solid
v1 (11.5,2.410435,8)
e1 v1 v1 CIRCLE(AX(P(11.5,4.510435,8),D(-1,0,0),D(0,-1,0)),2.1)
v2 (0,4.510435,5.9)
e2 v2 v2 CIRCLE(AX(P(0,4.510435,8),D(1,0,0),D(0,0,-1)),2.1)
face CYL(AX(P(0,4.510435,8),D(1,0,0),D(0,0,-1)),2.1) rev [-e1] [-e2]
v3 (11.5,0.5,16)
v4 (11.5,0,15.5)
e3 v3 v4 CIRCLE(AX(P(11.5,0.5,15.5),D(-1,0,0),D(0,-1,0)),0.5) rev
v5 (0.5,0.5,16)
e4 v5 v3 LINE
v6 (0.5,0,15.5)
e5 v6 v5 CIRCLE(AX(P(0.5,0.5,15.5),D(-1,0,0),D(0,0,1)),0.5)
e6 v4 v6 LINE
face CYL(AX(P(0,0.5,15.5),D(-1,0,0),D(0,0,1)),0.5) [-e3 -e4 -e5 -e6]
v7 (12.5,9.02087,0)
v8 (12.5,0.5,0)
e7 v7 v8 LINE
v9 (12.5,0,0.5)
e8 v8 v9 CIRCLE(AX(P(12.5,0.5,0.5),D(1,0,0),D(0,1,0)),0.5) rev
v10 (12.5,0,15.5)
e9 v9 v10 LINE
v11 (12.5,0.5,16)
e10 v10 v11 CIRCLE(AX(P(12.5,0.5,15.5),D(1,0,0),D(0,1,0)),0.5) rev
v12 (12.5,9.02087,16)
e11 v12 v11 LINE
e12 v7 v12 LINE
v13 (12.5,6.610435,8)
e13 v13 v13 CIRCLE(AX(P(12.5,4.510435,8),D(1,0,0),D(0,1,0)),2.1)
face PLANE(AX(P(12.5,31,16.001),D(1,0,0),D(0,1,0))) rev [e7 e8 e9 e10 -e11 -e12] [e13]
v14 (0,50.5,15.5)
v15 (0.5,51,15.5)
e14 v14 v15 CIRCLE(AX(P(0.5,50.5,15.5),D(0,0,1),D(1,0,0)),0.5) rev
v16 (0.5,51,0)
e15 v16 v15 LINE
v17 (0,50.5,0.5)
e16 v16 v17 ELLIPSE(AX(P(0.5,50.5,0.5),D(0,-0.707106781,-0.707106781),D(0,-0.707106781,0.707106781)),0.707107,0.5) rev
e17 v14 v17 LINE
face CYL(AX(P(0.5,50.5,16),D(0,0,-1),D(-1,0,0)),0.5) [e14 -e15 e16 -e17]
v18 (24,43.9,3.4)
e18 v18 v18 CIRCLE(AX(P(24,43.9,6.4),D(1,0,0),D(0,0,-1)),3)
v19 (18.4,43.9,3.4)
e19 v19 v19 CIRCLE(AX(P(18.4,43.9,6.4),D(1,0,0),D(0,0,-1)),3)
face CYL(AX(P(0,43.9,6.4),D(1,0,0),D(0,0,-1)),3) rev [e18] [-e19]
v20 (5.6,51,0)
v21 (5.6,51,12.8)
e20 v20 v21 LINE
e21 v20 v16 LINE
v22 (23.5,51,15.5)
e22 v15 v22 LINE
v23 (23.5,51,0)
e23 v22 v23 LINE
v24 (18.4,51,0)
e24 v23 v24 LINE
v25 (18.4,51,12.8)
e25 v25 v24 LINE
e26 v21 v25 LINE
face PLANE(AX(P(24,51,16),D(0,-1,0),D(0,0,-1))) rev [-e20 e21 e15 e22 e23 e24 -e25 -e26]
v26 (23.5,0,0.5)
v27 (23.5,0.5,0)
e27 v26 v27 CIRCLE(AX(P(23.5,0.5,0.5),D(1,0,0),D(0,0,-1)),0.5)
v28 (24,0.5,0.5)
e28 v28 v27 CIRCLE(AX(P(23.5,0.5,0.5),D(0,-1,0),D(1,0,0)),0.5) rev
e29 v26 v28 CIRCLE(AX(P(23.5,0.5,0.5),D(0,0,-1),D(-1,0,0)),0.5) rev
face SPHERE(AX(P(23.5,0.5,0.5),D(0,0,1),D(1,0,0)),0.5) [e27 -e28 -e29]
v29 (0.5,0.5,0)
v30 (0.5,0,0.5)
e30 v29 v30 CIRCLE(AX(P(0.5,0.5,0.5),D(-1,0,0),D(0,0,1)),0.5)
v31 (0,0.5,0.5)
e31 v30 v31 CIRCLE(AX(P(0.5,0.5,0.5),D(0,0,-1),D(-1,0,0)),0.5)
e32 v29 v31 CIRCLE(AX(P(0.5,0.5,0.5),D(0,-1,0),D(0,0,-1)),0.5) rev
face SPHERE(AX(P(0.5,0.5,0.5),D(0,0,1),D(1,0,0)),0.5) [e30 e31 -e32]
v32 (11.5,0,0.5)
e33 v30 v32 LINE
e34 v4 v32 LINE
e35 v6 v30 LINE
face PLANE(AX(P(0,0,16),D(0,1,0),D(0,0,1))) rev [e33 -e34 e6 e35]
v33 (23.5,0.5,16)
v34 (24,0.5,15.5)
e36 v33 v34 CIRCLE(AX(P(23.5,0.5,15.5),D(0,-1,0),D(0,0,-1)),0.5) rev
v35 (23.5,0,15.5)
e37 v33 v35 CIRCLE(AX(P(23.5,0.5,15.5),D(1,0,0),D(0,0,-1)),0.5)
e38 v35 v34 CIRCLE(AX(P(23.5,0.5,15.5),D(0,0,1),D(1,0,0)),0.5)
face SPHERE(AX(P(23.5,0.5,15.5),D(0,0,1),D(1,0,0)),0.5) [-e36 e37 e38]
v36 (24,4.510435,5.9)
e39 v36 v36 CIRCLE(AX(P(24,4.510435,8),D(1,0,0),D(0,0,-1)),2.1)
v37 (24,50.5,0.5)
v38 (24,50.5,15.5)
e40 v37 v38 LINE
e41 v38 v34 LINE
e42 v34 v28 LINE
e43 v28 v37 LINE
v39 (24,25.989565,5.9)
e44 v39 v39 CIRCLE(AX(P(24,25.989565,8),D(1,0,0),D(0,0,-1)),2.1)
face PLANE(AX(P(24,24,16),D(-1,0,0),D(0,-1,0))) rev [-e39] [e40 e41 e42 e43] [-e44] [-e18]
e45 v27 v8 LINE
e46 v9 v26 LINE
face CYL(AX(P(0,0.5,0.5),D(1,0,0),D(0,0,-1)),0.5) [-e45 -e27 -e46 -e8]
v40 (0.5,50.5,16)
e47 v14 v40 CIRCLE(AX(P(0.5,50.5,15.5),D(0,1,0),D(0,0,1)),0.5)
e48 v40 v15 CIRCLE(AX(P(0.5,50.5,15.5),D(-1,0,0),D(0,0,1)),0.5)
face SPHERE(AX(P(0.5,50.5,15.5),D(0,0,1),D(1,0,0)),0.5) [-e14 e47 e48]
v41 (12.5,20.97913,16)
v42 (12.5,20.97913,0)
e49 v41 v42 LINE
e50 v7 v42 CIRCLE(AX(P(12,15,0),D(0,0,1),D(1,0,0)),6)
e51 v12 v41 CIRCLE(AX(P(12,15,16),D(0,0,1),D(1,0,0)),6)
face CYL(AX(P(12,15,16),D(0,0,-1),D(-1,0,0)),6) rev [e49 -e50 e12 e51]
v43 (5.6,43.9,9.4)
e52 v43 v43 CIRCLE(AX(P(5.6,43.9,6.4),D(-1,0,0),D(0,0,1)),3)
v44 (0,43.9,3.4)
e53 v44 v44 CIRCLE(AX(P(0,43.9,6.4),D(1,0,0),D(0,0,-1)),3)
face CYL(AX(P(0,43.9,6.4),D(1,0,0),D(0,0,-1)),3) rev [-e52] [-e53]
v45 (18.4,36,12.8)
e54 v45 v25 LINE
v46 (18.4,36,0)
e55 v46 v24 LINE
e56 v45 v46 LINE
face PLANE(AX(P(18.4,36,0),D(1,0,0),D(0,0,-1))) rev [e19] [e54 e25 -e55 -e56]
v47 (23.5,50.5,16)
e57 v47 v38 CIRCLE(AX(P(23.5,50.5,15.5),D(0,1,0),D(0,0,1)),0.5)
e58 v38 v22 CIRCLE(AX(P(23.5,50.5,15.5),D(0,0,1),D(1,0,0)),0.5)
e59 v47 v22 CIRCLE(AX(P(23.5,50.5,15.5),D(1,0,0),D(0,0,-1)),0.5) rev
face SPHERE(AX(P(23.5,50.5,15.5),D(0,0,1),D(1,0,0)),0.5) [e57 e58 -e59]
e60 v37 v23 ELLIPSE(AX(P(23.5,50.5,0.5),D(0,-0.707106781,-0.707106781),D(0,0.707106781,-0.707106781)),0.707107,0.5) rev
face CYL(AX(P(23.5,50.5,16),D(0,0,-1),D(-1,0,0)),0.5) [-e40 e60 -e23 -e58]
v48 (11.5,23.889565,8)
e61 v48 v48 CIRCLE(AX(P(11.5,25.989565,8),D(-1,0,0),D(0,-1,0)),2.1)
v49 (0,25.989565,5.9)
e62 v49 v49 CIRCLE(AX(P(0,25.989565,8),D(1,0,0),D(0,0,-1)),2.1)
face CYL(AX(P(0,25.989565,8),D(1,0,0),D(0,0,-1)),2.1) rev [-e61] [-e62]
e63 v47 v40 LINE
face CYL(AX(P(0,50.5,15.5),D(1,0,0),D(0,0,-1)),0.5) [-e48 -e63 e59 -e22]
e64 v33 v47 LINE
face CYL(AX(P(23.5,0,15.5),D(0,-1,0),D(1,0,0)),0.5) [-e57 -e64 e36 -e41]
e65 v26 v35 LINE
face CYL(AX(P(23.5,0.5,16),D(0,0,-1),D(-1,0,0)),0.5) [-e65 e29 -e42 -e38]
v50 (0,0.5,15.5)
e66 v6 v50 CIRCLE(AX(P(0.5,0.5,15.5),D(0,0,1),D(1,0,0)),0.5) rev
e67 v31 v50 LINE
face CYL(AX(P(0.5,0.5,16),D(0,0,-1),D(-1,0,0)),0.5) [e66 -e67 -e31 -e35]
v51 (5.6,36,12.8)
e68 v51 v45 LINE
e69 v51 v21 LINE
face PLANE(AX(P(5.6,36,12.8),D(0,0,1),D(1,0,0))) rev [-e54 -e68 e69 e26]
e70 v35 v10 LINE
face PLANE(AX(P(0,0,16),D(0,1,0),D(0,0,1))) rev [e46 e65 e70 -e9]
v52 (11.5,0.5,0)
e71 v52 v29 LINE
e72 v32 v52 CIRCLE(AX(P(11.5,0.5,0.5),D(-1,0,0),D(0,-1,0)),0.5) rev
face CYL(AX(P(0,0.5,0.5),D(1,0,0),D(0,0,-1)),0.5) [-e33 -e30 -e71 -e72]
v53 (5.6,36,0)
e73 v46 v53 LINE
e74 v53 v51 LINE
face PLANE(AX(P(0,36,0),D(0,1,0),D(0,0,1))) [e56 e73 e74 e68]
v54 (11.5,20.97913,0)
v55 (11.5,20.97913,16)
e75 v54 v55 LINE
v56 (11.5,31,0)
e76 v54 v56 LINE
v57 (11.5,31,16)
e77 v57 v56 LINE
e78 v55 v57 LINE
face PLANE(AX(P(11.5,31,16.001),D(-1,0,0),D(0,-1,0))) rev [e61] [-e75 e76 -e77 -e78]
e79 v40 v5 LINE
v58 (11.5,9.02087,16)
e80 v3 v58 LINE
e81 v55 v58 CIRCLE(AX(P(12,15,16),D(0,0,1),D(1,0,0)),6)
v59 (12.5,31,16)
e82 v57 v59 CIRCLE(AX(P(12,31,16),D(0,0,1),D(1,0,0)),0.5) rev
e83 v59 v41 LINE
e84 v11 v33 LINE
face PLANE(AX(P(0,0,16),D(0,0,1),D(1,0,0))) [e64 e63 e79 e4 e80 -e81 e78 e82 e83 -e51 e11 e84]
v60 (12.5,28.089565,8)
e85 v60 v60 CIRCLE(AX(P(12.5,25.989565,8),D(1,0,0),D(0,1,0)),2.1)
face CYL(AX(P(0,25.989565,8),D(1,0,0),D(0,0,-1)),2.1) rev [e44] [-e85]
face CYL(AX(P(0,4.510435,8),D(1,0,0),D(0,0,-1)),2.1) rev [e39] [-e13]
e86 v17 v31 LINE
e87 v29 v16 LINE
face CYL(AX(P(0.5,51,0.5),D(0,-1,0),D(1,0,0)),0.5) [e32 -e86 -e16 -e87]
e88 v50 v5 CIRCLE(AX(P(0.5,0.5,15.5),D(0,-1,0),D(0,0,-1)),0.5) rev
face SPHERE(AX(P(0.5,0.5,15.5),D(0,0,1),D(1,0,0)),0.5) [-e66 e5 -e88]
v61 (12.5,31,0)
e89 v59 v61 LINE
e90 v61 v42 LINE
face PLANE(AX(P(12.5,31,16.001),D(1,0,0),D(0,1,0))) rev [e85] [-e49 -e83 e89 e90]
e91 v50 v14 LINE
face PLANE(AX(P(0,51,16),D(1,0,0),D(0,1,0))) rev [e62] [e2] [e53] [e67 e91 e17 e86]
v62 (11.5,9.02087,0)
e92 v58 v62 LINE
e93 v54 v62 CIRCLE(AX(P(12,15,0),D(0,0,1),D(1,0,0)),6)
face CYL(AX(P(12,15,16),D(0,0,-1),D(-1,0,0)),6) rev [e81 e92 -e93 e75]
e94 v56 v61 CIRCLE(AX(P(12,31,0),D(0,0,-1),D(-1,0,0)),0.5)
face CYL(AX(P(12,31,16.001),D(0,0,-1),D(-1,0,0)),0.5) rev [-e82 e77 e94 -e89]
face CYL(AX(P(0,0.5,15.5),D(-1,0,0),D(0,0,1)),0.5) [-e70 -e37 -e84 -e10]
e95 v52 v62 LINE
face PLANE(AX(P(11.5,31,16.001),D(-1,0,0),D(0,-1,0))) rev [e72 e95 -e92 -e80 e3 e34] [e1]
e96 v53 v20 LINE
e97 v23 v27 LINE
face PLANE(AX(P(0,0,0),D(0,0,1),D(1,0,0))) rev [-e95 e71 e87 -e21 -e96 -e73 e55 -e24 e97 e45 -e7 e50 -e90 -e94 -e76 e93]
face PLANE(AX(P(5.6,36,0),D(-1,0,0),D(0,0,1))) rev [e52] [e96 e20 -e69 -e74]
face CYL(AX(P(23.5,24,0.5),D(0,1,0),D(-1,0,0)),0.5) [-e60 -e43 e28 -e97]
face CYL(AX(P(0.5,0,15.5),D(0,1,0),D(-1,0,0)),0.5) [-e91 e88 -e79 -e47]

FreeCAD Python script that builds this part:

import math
import FreeCAD as App
import Part
import Sketcher

V = App.Vector
Q = App.Units.Quantity


def edges_at(feature, points):
    """Names of the edges that pass closest to the given points."""
    edges = feature.Shape.Edges
    near = lambda p: min(range(len(edges)), key=lambda i: edges[i].distToShape(Part.Vertex(*p))[0])
    return sorted({f"Edge{near(p) + 1}" for p in points})

doc = App.newDocument("Part")
body = doc.addObject("PartDesign::Body", "Body")

sketch1 = body.newObject("Sketcher::SketchObject", "Sketch")
sketch1.AttachmentSupport = (doc.getObject("XY_Plane"), [""])
sketch1.MapMode = "FlatFace"
sketch1.addGeometry([
    Part.LineSegment(V(0, 0, 0), V(24, 0, 0)),
    Part.LineSegment(V(24, 0, 0), V(24, 51, 0)),
    Part.LineSegment(V(24, 51, 0), V(0, 51, 0)),
    Part.LineSegment(V(0, 51, 0), V(0, 0, 0)),
    Part.Circle(V(12, 15, 0), V(0, 0, 1), 6),
], False)
sketch1.addConstraint([
    Sketcher.Constraint("Coincident", 0, 2, 1, 1),
    Sketcher.Constraint("Coincident", 1, 2, 2, 1),
    Sketcher.Constraint("Coincident", 2, 2, 3, 1),
    Sketcher.Constraint("Coincident", 3, 2, 0, 1),
    Sketcher.Constraint("Horizontal", 0),
    Sketcher.Constraint("Vertical", 1),
    Sketcher.Constraint("Horizontal", 2),
    Sketcher.Constraint("Vertical", 3),
    Sketcher.Constraint("Coincident", 3, 2, -1, 1),
    Sketcher.Constraint("Diameter", 4, Q("12 mm")),
    Sketcher.Constraint("DistanceX", 0, 1, 0, 2, Q("24 mm")),
    Sketcher.Constraint("DistanceY", 1, 1, 1, 2, Q("51 mm")),
    Sketcher.Constraint("DistanceX", -1, 1, 4, 3, Q("12 mm")),
    Sketcher.Constraint("DistanceY", -1, 1, 4, 3, Q("15 mm")),
])
pad1 = body.newObject("PartDesign::Pad", "Pad")
pad1.Profile = sketch1
pad1.Length = 16

sketch2 = body.newObject("Sketcher::SketchObject", "Sketch001")
sketch2.AttachmentSupport = (doc.getObject("XY_Plane"), [""])
sketch2.MapMode = "FlatFace"
sketch2.AttachmentOffset = App.Placement(V(0, 0, 16), App.Rotation())
sketch2.addGeometry([
    Part.LineSegment(V(11.5, -14, 0), V(11.5, 31, 0)),
    Part.ArcOfCircle(Part.Circle(V(12, 31, 0), V(0, 0, 1), 0.5), math.radians(0), math.radians(180)),
    Part.LineSegment(V(12.5, 31, 0), V(12.5, -14, 0)),
    Part.ArcOfCircle(Part.Circle(V(12, -14, 0), V(0, 0, 1), 0.5), math.radians(180), math.radians(360)),
], False)
sketch2.addConstraint([
    Sketcher.Constraint("Tangent", 0, 2, 1, 2),
    Sketcher.Constraint("Tangent", 1, 1, 2, 1),
    Sketcher.Constraint("Tangent", 2, 2, 3, 2),
    Sketcher.Constraint("Tangent", 3, 1, 0, 1),
    Sketcher.Constraint("Vertical", 0),
    Sketcher.Constraint("Vertical", 2),
    Sketcher.Constraint("Radius", 1, Q("0.5 mm")),
    Sketcher.Constraint("DistanceY", 0, 1, 0, 2, Q("45 mm")),
    Sketcher.Constraint("DistanceX", -1, 1, 1, 3, Q("12 mm")),
    Sketcher.Constraint("DistanceY", -1, 1, 1, 3, Q("31 mm")),
])
pocket1 = body.newObject("PartDesign::Pocket", "Pocket")
pocket1.Profile = sketch2
pocket1.Length = 16

sketch3 = body.newObject("Sketcher::SketchObject", "Sketch002")
sketch3.AttachmentSupport = (doc.getObject("YZ_Plane"), [""])
sketch3.MapMode = "FlatFace"
sketch3.AttachmentOffset = App.Placement(V(0, 0, 24), App.Rotation())
sketch3.addGeometry([
    Part.Circle(V(25.989565, 8, 0), V(0, 0, 1), 2.1),
    Part.Circle(V(4.510435, 8, 0), V(0, 0, 1), 2.1),
], False)
sketch3.addConstraint([
    Sketcher.Constraint("Equal", 0, 1),
    Sketcher.Constraint("Horizontal", 0, 3, 1, 3),
    Sketcher.Constraint("Diameter", 0, Q("4.2 mm")),
    Sketcher.Constraint("DistanceY", -1, 1, 0, 3, Q("8 mm")),
    Sketcher.Constraint("DistanceX", 1, 3, 0, 3, Q("21.47913 mm")),
    Sketcher.Constraint("DistanceX", -1, 1, 0, 3, Q("25.989565 mm")),
])
pocket2 = body.newObject("PartDesign::Pocket", "Pocket001")
pocket2.Profile = sketch3
pocket2.Type = "ThroughAll"

sketch4 = body.newObject("Sketcher::SketchObject", "Sketch003")
sketch4.AttachmentSupport = (doc.getObject("XZ_Plane"), [""])
sketch4.MapMode = "FlatFace"
sketch4.AttachmentOffset = App.Placement(V(0, 0, -51), App.Rotation())
sketch4.addGeometry([
    Part.LineSegment(V(5.6, 0, 0), V(5.6, 12.8, 0)),
    Part.LineSegment(V(5.6, 12.8, 0), V(18.4, 12.8, 0)),
    Part.LineSegment(V(18.4, 12.8, 0), V(18.4, 0, 0)),
    Part.LineSegment(V(18.4, 0, 0), V(5.6, 0, 0)),
], False)
sketch4.addConstraint([
    Sketcher.Constraint("Coincident", 0, 2, 1, 1),
    Sketcher.Constraint("Coincident", 1, 2, 2, 1),
    Sketcher.Constraint("Coincident", 2, 2, 3, 1),
    Sketcher.Constraint("Coincident", 3, 2, 0, 1),
    Sketcher.Constraint("Vertical", 0),
    Sketcher.Constraint("Horizontal", 1),
    Sketcher.Constraint("Vertical", 2),
    Sketcher.Constraint("Horizontal", 3),
    Sketcher.Constraint("PointOnObject", 2, 2, -1),
    Sketcher.Constraint("Equal", 3, 0),
    Sketcher.Constraint("DistanceX", 1, 1, 1, 2, Q("12.8 mm")),
    Sketcher.Constraint("DistanceX", -1, 1, 0, 2, Q("5.6 mm")),
])
pocket3 = body.newObject("PartDesign::Pocket", "Pocket002")
pocket3.Profile = sketch4
pocket3.Length = 15
pocket3.Reversed = True

sketch5 = body.newObject("Sketcher::SketchObject", "Sketch004")
sketch5.AttachmentSupport = (doc.getObject("YZ_Plane"), [""])
sketch5.MapMode = "FlatFace"
sketch5.AttachmentOffset = App.Placement(V(0, 0, 24), App.Rotation())
sketch5.addGeometry(Part.Circle(V(43.9, 6.4, 0), V(0, 0, 1), 3), False)
sketch5.addConstraint([
    Sketcher.Constraint("Diameter", 0, Q("6 mm")),
    Sketcher.Constraint("DistanceX", -1, 1, 0, 3, Q("43.9 mm")),
    Sketcher.Constraint("DistanceY", -1, 1, 0, 3, Q("6.4 mm")),
])
pocket4 = body.newObject("PartDesign::Pocket", "Pocket003")
pocket4.Profile = sketch5
pocket4.Type = "ThroughAll"
doc.recompute()

fillet = body.newObject("PartDesign::Fillet", "Fillet")
fillet.Base = (pocket4, edges_at(pocket4, [
    (24, 25.5, 16),
    (0, 51, 8),
    (24, 51, 8),
    (24, 0, 8),
    (0, 0, 8),
    (12, 51, 16),
    (18.25, 0, 0),
    (18.25, 0, 16),
    (0, 25.5, 16),
    (0, 25.5, 0),
    (24, 25.5, 0),
    (5.75, 0, 16),
    (5.75, 0, 0),
]))
fillet.Radius = 0.5

doc.recompute()
